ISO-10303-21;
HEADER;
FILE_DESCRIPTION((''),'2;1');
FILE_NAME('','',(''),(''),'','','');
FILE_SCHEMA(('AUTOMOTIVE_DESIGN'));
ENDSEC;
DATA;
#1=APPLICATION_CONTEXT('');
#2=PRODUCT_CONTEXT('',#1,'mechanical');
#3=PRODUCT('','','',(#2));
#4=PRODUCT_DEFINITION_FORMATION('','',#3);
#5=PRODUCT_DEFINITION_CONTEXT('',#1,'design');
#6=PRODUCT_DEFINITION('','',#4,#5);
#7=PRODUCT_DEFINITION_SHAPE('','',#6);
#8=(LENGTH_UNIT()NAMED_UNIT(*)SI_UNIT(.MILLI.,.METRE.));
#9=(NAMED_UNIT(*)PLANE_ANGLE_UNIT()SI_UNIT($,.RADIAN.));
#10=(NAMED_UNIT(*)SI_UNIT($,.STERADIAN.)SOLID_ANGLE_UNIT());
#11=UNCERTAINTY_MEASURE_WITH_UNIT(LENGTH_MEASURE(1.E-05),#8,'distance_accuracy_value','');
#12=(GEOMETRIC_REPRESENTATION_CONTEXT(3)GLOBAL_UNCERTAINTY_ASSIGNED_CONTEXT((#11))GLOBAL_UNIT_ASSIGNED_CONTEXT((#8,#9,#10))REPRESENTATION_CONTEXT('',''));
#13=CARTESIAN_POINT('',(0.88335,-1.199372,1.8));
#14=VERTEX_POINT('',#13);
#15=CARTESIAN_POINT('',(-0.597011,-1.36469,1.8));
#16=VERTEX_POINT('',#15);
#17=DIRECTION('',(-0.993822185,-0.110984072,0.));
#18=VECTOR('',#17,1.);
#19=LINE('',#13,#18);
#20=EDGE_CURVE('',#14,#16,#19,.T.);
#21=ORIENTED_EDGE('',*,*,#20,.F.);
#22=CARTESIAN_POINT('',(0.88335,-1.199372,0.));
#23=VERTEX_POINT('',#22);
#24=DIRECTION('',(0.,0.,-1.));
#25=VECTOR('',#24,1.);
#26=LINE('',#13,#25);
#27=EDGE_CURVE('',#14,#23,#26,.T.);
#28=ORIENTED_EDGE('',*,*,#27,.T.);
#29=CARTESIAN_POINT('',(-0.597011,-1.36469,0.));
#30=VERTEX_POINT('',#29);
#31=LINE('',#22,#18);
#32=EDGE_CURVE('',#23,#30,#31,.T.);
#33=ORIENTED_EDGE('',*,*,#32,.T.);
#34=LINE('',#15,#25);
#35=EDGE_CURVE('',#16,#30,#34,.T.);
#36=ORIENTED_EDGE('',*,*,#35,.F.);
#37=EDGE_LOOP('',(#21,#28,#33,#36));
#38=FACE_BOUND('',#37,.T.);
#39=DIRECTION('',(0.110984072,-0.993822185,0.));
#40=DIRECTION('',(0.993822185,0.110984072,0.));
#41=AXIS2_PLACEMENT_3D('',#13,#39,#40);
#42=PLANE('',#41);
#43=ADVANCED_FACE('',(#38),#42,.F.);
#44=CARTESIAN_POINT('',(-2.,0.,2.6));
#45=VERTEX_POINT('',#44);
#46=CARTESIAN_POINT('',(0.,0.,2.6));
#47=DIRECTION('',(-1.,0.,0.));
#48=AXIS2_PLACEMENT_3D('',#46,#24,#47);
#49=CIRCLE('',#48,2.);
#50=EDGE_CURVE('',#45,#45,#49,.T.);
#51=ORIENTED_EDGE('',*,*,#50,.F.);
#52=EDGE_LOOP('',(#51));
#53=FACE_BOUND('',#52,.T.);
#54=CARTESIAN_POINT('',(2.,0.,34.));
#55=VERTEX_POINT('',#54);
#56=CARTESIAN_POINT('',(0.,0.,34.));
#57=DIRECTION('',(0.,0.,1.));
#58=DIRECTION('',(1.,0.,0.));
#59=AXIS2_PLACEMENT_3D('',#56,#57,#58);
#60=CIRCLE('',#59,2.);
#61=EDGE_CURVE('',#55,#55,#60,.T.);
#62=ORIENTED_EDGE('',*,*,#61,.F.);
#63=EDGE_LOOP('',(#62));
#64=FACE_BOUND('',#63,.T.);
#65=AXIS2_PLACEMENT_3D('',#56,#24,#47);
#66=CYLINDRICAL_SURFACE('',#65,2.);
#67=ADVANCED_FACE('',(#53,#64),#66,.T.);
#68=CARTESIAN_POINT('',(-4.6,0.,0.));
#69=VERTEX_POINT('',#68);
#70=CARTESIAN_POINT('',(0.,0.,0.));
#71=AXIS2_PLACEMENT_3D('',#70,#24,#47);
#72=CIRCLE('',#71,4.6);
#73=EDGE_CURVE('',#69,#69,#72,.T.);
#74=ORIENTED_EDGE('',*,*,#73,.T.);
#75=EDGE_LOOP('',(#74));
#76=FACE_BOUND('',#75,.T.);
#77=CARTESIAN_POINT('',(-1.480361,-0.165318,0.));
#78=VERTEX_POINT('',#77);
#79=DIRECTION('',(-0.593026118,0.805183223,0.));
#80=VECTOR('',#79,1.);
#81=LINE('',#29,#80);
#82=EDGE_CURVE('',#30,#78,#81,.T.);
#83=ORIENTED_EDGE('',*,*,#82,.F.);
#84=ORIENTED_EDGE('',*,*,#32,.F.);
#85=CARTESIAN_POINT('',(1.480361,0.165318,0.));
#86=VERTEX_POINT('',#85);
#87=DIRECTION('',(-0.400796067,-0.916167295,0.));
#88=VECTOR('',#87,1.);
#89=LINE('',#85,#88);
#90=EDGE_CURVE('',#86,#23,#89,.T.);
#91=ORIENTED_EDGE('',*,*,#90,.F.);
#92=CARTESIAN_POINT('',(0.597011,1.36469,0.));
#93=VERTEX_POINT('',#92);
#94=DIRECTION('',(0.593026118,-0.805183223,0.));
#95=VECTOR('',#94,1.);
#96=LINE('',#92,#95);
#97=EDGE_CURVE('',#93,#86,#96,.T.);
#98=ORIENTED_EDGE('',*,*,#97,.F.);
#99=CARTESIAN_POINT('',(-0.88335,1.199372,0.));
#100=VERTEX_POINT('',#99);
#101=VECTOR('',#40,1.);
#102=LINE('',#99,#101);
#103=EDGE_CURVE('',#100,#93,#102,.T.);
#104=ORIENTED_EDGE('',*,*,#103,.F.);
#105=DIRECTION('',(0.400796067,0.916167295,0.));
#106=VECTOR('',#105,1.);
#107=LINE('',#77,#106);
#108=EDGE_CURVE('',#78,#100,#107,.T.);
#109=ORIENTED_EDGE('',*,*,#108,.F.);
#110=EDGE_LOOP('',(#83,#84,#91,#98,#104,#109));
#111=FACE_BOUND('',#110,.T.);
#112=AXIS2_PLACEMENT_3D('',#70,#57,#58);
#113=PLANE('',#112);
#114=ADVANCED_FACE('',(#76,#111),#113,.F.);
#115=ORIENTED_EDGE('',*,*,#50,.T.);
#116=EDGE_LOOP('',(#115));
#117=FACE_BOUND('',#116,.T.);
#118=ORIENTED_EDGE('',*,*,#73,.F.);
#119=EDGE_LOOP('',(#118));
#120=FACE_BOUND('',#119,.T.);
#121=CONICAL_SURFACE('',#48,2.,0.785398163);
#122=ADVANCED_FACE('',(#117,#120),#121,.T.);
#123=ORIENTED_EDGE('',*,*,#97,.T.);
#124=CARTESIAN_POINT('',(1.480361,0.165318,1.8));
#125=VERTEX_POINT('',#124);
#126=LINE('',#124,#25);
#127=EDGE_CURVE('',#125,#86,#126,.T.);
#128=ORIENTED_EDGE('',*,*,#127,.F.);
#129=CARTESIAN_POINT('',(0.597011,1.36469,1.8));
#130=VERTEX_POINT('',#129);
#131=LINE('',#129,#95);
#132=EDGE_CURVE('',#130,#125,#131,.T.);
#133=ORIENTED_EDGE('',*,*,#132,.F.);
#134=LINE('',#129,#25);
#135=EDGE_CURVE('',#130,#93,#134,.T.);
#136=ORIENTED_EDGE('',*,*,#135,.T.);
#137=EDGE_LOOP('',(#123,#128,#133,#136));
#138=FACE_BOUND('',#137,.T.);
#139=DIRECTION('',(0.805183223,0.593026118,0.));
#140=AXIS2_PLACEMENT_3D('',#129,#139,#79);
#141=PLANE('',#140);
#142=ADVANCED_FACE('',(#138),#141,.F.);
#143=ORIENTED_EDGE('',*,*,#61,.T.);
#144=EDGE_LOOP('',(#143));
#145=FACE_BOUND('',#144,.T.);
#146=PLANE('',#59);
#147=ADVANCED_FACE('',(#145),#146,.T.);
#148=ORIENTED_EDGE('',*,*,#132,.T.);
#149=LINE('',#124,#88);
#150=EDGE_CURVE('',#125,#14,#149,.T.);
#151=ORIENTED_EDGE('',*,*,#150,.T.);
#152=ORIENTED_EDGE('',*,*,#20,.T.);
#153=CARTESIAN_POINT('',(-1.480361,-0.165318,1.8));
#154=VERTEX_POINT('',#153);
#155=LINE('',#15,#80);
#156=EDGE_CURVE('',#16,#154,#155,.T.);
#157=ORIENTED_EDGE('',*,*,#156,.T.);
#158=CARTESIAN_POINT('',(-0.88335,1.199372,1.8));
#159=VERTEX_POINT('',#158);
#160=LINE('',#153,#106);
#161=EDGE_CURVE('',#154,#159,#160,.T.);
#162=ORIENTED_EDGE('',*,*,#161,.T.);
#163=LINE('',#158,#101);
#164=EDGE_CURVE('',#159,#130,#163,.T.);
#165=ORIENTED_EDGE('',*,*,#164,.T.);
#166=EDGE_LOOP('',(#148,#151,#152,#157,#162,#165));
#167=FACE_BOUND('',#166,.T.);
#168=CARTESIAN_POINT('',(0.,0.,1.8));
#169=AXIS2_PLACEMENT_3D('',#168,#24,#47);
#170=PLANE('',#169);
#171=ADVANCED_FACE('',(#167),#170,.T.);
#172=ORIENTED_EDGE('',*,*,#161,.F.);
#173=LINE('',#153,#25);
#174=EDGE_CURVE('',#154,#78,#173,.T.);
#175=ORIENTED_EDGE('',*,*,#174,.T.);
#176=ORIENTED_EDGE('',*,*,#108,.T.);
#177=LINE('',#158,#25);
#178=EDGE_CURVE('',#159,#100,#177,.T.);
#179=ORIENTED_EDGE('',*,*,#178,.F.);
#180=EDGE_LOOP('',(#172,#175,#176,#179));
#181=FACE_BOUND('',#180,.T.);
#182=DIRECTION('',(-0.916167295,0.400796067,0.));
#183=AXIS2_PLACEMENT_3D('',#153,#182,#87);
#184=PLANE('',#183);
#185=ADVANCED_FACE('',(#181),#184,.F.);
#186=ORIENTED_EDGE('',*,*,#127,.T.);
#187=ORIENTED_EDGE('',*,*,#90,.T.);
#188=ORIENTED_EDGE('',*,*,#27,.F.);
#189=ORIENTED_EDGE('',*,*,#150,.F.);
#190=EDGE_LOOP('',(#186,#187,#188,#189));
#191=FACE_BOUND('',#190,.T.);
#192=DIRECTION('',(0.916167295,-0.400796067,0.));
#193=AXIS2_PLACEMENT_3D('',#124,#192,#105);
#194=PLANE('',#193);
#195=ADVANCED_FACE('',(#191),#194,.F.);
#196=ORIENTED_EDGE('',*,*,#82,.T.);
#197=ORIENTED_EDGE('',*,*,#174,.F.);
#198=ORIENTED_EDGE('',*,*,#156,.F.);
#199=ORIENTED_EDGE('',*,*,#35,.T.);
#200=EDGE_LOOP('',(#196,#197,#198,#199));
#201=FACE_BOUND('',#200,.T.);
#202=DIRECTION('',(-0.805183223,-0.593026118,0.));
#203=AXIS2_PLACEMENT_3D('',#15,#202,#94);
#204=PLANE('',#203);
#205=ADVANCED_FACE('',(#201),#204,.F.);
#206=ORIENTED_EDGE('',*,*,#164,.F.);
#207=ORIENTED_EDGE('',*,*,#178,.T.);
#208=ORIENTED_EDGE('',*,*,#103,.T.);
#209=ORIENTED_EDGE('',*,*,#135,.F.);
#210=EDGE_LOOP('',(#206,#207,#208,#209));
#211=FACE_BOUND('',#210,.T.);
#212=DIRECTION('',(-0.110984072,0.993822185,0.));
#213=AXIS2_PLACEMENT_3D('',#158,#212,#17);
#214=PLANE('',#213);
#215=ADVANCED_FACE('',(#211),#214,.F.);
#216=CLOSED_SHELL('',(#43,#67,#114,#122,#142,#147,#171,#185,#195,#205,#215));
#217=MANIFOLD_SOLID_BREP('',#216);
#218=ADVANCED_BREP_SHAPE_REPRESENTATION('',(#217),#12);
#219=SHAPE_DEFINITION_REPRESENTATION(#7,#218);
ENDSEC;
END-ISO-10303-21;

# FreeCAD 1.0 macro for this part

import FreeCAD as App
import Part
import Sketcher
Q = App.Units.Quantity

doc = App.newDocument("Part")
params = doc.addObject("Spreadsheet::Sheet", "Params")
for row, (alias, value) in enumerate([
    ("sketch1_diameter", "4 mm"),
    ("pad1_length", "34 mm"),
    ("sketch2_width", "2.6 mm"),
    ("revolution_angle", "360 deg"),
    ("pocket1_length", "1.8 mm"),
], start=1):
    params.set(f"A{row}", alias)
    params.set(f"B{row}", "=" + value)
    params.setAlias(f"B{row}", alias)

body = doc.addObject("PartDesign::Body", "Body")

# Sketch on XY plane
sketch1 = body.newObject("Sketcher::SketchObject", "Sketch")
sketch1.AttachmentSupport = (doc.getObject("XY_Plane"), [""])
sketch1.MapMode = "FlatFace"
sketch1.addGeometry(Part.Circle(App.Vector(0, 0, 0), App.Vector(0, 0, 1), 2), False)
sketch1.addConstraint(Sketcher.Constraint("Coincident", 0, 3, -1, 1))
sketch1.addConstraint(Sketcher.Constraint("Diameter", 0, Q("4 mm")))
sketch1.setExpression("Constraints[1]", "Params.sketch1_diameter")
pad1 = body.newObject("PartDesign::Pad", "Pad")
pad1.Profile = sketch1
pad1.setExpression("Length", "Params.pad1_length")

# Sketch on XZ plane
sketch2 = body.newObject("Sketcher::SketchObject", "Sketch001")
sketch2.AttachmentSupport = (doc.getObject("XZ_Plane"), [""])
sketch2.MapMode = "FlatFace"
sketch2.addGeometry(Part.LineSegment(App.Vector(2, 0, 0), App.Vector(2, 2.6, 0)), False)
sketch2.addGeometry(Part.LineSegment(App.Vector(2, 2.6, 0), App.Vector(4.6, 0, 0)), False)
sketch2.addGeometry(Part.LineSegment(App.Vector(4.6, 0, 0), App.Vector(2, 0, 0)), False)
sketch2.addConstraint(Sketcher.Constraint("Coincident", 0, 2, 1, 1))
sketch2.addConstraint(Sketcher.Constraint("Coincident", 1, 2, 2, 1))
sketch2.addConstraint(Sketcher.Constraint("Coincident", 2, 2, 0, 1))
sketch2.addConstraint(Sketcher.Constraint("Vertical", 0))
sketch2.addConstraint(Sketcher.Constraint("Horizontal", 2))
sketch2.addConstraint(Sketcher.Constraint("PointOnObject", 1, 2, -1))
sketch2.addConstraint(Sketcher.Constraint("Equal", 2, 0))
sketch2.addConstraint(Sketcher.Constraint("DistanceX", 2, 2, 2, 1, Q("2.6 mm")))
sketch2.addConstraint(Sketcher.Constraint("DistanceX", -1, 1, 0, 2, Q("2 mm")))
sketch2.setExpression("Constraints[7]", "Params.sketch2_width")
revolution = body.newObject("PartDesign::Revolution", "Revolution")
revolution.Profile = sketch2
revolution.ReferenceAxis = (sketch2, ["V_Axis"])
revolution.setExpression("Angle", "Params.revolution_angle")

# Sketch on XY plane
sketch3 = body.newObject("Sketcher::SketchObject", "Sketch002")
sketch3.AttachmentSupport = (doc.getObject("XY_Plane"), [""])
sketch3.MapMode = "FlatFace"
sketch3.addGeometry(Part.LineSegment(App.Vector(0.6, 1.4, 0), App.Vector(1.5, 0.2, 0)), False)
sketch3.addGeometry(Part.LineSegment(App.Vector(1.5, 0.2, 0), App.Vector(0.9, -1.2, 0)), False)
sketch3.addGeometry(Part.LineSegment(App.Vector(0.9, -1.2, 0), App.Vector(-0.6, -1.4, 0)), False)
sketch3.addGeometry(Part.LineSegment(App.Vector(-0.6, -1.4, 0), App.Vector(-1.5, -0.2, 0)), False)
sketch3.addGeometry(Part.LineSegment(App.Vector(-1.5, -0.2, 0), App.Vector(-0.9, 1.2, 0)), False)
sketch3.addGeometry(Part.LineSegment(App.Vector(-0.9, 1.2, 0), App.Vector(0.6, 1.4, 0)), False)
sketch3.addConstraint(Sketcher.Constraint("Coincident", 0, 2, 1, 1))
sketch3.addConstraint(Sketcher.Constraint("Coincident", 1, 2, 2, 1))
sketch3.addConstraint(Sketcher.Constraint("Coincident", 2, 2, 3, 1))
sketch3.addConstraint(Sketcher.Constraint("Coincident", 3, 2, 4, 1))
sketch3.addConstraint(Sketcher.Constraint("Coincident", 4, 2, 5, 1))
sketch3.addConstraint(Sketcher.Constraint("Coincident", 5, 2, 0, 1))
sketch3.addConstraint(Sketcher.Constraint("Symmetric", 0, 2, 3, 2, -1, 1))
sketch3.addConstraint(Sketcher.Constraint("Symmetric", 1, 2, 4, 2, -1, 1))
sketch3.addConstraint(Sketcher.Constraint("Symmetric", 2, 2, 5, 2, -1, 1))
sketch3.addConstraint(Sketcher.Constraint("Equal", 0, 1))
sketch3.addConstraint(Sketcher.Constraint("Equal", 1, 2))
sketch3.addConstraint(Sketcher.Constraint("DistanceX", 4, 2, 1, 2, Q("1.7667 mm")))
sketch3.addConstraint(Sketcher.Constraint("DistanceX", -1, 1, 0, 2, Q("1.480361 mm")))
sketch3.addConstraint(Sketcher.Constraint("DistanceY", 1, 2, -1, 1, Q("1.199372 mm")))
sketch3.addConstraint(Sketcher.Constraint("DistanceX", 2, 2, -1, 1, Q("0.597011 mm")))
pocket1 = body.newObject("PartDesign::Pocket", "Pocket")
pocket1.Profile = sketch3
pocket1.setExpression("Length", "Params.pocket1_length")
pocket1.Reversed = True

doc.recompute()
